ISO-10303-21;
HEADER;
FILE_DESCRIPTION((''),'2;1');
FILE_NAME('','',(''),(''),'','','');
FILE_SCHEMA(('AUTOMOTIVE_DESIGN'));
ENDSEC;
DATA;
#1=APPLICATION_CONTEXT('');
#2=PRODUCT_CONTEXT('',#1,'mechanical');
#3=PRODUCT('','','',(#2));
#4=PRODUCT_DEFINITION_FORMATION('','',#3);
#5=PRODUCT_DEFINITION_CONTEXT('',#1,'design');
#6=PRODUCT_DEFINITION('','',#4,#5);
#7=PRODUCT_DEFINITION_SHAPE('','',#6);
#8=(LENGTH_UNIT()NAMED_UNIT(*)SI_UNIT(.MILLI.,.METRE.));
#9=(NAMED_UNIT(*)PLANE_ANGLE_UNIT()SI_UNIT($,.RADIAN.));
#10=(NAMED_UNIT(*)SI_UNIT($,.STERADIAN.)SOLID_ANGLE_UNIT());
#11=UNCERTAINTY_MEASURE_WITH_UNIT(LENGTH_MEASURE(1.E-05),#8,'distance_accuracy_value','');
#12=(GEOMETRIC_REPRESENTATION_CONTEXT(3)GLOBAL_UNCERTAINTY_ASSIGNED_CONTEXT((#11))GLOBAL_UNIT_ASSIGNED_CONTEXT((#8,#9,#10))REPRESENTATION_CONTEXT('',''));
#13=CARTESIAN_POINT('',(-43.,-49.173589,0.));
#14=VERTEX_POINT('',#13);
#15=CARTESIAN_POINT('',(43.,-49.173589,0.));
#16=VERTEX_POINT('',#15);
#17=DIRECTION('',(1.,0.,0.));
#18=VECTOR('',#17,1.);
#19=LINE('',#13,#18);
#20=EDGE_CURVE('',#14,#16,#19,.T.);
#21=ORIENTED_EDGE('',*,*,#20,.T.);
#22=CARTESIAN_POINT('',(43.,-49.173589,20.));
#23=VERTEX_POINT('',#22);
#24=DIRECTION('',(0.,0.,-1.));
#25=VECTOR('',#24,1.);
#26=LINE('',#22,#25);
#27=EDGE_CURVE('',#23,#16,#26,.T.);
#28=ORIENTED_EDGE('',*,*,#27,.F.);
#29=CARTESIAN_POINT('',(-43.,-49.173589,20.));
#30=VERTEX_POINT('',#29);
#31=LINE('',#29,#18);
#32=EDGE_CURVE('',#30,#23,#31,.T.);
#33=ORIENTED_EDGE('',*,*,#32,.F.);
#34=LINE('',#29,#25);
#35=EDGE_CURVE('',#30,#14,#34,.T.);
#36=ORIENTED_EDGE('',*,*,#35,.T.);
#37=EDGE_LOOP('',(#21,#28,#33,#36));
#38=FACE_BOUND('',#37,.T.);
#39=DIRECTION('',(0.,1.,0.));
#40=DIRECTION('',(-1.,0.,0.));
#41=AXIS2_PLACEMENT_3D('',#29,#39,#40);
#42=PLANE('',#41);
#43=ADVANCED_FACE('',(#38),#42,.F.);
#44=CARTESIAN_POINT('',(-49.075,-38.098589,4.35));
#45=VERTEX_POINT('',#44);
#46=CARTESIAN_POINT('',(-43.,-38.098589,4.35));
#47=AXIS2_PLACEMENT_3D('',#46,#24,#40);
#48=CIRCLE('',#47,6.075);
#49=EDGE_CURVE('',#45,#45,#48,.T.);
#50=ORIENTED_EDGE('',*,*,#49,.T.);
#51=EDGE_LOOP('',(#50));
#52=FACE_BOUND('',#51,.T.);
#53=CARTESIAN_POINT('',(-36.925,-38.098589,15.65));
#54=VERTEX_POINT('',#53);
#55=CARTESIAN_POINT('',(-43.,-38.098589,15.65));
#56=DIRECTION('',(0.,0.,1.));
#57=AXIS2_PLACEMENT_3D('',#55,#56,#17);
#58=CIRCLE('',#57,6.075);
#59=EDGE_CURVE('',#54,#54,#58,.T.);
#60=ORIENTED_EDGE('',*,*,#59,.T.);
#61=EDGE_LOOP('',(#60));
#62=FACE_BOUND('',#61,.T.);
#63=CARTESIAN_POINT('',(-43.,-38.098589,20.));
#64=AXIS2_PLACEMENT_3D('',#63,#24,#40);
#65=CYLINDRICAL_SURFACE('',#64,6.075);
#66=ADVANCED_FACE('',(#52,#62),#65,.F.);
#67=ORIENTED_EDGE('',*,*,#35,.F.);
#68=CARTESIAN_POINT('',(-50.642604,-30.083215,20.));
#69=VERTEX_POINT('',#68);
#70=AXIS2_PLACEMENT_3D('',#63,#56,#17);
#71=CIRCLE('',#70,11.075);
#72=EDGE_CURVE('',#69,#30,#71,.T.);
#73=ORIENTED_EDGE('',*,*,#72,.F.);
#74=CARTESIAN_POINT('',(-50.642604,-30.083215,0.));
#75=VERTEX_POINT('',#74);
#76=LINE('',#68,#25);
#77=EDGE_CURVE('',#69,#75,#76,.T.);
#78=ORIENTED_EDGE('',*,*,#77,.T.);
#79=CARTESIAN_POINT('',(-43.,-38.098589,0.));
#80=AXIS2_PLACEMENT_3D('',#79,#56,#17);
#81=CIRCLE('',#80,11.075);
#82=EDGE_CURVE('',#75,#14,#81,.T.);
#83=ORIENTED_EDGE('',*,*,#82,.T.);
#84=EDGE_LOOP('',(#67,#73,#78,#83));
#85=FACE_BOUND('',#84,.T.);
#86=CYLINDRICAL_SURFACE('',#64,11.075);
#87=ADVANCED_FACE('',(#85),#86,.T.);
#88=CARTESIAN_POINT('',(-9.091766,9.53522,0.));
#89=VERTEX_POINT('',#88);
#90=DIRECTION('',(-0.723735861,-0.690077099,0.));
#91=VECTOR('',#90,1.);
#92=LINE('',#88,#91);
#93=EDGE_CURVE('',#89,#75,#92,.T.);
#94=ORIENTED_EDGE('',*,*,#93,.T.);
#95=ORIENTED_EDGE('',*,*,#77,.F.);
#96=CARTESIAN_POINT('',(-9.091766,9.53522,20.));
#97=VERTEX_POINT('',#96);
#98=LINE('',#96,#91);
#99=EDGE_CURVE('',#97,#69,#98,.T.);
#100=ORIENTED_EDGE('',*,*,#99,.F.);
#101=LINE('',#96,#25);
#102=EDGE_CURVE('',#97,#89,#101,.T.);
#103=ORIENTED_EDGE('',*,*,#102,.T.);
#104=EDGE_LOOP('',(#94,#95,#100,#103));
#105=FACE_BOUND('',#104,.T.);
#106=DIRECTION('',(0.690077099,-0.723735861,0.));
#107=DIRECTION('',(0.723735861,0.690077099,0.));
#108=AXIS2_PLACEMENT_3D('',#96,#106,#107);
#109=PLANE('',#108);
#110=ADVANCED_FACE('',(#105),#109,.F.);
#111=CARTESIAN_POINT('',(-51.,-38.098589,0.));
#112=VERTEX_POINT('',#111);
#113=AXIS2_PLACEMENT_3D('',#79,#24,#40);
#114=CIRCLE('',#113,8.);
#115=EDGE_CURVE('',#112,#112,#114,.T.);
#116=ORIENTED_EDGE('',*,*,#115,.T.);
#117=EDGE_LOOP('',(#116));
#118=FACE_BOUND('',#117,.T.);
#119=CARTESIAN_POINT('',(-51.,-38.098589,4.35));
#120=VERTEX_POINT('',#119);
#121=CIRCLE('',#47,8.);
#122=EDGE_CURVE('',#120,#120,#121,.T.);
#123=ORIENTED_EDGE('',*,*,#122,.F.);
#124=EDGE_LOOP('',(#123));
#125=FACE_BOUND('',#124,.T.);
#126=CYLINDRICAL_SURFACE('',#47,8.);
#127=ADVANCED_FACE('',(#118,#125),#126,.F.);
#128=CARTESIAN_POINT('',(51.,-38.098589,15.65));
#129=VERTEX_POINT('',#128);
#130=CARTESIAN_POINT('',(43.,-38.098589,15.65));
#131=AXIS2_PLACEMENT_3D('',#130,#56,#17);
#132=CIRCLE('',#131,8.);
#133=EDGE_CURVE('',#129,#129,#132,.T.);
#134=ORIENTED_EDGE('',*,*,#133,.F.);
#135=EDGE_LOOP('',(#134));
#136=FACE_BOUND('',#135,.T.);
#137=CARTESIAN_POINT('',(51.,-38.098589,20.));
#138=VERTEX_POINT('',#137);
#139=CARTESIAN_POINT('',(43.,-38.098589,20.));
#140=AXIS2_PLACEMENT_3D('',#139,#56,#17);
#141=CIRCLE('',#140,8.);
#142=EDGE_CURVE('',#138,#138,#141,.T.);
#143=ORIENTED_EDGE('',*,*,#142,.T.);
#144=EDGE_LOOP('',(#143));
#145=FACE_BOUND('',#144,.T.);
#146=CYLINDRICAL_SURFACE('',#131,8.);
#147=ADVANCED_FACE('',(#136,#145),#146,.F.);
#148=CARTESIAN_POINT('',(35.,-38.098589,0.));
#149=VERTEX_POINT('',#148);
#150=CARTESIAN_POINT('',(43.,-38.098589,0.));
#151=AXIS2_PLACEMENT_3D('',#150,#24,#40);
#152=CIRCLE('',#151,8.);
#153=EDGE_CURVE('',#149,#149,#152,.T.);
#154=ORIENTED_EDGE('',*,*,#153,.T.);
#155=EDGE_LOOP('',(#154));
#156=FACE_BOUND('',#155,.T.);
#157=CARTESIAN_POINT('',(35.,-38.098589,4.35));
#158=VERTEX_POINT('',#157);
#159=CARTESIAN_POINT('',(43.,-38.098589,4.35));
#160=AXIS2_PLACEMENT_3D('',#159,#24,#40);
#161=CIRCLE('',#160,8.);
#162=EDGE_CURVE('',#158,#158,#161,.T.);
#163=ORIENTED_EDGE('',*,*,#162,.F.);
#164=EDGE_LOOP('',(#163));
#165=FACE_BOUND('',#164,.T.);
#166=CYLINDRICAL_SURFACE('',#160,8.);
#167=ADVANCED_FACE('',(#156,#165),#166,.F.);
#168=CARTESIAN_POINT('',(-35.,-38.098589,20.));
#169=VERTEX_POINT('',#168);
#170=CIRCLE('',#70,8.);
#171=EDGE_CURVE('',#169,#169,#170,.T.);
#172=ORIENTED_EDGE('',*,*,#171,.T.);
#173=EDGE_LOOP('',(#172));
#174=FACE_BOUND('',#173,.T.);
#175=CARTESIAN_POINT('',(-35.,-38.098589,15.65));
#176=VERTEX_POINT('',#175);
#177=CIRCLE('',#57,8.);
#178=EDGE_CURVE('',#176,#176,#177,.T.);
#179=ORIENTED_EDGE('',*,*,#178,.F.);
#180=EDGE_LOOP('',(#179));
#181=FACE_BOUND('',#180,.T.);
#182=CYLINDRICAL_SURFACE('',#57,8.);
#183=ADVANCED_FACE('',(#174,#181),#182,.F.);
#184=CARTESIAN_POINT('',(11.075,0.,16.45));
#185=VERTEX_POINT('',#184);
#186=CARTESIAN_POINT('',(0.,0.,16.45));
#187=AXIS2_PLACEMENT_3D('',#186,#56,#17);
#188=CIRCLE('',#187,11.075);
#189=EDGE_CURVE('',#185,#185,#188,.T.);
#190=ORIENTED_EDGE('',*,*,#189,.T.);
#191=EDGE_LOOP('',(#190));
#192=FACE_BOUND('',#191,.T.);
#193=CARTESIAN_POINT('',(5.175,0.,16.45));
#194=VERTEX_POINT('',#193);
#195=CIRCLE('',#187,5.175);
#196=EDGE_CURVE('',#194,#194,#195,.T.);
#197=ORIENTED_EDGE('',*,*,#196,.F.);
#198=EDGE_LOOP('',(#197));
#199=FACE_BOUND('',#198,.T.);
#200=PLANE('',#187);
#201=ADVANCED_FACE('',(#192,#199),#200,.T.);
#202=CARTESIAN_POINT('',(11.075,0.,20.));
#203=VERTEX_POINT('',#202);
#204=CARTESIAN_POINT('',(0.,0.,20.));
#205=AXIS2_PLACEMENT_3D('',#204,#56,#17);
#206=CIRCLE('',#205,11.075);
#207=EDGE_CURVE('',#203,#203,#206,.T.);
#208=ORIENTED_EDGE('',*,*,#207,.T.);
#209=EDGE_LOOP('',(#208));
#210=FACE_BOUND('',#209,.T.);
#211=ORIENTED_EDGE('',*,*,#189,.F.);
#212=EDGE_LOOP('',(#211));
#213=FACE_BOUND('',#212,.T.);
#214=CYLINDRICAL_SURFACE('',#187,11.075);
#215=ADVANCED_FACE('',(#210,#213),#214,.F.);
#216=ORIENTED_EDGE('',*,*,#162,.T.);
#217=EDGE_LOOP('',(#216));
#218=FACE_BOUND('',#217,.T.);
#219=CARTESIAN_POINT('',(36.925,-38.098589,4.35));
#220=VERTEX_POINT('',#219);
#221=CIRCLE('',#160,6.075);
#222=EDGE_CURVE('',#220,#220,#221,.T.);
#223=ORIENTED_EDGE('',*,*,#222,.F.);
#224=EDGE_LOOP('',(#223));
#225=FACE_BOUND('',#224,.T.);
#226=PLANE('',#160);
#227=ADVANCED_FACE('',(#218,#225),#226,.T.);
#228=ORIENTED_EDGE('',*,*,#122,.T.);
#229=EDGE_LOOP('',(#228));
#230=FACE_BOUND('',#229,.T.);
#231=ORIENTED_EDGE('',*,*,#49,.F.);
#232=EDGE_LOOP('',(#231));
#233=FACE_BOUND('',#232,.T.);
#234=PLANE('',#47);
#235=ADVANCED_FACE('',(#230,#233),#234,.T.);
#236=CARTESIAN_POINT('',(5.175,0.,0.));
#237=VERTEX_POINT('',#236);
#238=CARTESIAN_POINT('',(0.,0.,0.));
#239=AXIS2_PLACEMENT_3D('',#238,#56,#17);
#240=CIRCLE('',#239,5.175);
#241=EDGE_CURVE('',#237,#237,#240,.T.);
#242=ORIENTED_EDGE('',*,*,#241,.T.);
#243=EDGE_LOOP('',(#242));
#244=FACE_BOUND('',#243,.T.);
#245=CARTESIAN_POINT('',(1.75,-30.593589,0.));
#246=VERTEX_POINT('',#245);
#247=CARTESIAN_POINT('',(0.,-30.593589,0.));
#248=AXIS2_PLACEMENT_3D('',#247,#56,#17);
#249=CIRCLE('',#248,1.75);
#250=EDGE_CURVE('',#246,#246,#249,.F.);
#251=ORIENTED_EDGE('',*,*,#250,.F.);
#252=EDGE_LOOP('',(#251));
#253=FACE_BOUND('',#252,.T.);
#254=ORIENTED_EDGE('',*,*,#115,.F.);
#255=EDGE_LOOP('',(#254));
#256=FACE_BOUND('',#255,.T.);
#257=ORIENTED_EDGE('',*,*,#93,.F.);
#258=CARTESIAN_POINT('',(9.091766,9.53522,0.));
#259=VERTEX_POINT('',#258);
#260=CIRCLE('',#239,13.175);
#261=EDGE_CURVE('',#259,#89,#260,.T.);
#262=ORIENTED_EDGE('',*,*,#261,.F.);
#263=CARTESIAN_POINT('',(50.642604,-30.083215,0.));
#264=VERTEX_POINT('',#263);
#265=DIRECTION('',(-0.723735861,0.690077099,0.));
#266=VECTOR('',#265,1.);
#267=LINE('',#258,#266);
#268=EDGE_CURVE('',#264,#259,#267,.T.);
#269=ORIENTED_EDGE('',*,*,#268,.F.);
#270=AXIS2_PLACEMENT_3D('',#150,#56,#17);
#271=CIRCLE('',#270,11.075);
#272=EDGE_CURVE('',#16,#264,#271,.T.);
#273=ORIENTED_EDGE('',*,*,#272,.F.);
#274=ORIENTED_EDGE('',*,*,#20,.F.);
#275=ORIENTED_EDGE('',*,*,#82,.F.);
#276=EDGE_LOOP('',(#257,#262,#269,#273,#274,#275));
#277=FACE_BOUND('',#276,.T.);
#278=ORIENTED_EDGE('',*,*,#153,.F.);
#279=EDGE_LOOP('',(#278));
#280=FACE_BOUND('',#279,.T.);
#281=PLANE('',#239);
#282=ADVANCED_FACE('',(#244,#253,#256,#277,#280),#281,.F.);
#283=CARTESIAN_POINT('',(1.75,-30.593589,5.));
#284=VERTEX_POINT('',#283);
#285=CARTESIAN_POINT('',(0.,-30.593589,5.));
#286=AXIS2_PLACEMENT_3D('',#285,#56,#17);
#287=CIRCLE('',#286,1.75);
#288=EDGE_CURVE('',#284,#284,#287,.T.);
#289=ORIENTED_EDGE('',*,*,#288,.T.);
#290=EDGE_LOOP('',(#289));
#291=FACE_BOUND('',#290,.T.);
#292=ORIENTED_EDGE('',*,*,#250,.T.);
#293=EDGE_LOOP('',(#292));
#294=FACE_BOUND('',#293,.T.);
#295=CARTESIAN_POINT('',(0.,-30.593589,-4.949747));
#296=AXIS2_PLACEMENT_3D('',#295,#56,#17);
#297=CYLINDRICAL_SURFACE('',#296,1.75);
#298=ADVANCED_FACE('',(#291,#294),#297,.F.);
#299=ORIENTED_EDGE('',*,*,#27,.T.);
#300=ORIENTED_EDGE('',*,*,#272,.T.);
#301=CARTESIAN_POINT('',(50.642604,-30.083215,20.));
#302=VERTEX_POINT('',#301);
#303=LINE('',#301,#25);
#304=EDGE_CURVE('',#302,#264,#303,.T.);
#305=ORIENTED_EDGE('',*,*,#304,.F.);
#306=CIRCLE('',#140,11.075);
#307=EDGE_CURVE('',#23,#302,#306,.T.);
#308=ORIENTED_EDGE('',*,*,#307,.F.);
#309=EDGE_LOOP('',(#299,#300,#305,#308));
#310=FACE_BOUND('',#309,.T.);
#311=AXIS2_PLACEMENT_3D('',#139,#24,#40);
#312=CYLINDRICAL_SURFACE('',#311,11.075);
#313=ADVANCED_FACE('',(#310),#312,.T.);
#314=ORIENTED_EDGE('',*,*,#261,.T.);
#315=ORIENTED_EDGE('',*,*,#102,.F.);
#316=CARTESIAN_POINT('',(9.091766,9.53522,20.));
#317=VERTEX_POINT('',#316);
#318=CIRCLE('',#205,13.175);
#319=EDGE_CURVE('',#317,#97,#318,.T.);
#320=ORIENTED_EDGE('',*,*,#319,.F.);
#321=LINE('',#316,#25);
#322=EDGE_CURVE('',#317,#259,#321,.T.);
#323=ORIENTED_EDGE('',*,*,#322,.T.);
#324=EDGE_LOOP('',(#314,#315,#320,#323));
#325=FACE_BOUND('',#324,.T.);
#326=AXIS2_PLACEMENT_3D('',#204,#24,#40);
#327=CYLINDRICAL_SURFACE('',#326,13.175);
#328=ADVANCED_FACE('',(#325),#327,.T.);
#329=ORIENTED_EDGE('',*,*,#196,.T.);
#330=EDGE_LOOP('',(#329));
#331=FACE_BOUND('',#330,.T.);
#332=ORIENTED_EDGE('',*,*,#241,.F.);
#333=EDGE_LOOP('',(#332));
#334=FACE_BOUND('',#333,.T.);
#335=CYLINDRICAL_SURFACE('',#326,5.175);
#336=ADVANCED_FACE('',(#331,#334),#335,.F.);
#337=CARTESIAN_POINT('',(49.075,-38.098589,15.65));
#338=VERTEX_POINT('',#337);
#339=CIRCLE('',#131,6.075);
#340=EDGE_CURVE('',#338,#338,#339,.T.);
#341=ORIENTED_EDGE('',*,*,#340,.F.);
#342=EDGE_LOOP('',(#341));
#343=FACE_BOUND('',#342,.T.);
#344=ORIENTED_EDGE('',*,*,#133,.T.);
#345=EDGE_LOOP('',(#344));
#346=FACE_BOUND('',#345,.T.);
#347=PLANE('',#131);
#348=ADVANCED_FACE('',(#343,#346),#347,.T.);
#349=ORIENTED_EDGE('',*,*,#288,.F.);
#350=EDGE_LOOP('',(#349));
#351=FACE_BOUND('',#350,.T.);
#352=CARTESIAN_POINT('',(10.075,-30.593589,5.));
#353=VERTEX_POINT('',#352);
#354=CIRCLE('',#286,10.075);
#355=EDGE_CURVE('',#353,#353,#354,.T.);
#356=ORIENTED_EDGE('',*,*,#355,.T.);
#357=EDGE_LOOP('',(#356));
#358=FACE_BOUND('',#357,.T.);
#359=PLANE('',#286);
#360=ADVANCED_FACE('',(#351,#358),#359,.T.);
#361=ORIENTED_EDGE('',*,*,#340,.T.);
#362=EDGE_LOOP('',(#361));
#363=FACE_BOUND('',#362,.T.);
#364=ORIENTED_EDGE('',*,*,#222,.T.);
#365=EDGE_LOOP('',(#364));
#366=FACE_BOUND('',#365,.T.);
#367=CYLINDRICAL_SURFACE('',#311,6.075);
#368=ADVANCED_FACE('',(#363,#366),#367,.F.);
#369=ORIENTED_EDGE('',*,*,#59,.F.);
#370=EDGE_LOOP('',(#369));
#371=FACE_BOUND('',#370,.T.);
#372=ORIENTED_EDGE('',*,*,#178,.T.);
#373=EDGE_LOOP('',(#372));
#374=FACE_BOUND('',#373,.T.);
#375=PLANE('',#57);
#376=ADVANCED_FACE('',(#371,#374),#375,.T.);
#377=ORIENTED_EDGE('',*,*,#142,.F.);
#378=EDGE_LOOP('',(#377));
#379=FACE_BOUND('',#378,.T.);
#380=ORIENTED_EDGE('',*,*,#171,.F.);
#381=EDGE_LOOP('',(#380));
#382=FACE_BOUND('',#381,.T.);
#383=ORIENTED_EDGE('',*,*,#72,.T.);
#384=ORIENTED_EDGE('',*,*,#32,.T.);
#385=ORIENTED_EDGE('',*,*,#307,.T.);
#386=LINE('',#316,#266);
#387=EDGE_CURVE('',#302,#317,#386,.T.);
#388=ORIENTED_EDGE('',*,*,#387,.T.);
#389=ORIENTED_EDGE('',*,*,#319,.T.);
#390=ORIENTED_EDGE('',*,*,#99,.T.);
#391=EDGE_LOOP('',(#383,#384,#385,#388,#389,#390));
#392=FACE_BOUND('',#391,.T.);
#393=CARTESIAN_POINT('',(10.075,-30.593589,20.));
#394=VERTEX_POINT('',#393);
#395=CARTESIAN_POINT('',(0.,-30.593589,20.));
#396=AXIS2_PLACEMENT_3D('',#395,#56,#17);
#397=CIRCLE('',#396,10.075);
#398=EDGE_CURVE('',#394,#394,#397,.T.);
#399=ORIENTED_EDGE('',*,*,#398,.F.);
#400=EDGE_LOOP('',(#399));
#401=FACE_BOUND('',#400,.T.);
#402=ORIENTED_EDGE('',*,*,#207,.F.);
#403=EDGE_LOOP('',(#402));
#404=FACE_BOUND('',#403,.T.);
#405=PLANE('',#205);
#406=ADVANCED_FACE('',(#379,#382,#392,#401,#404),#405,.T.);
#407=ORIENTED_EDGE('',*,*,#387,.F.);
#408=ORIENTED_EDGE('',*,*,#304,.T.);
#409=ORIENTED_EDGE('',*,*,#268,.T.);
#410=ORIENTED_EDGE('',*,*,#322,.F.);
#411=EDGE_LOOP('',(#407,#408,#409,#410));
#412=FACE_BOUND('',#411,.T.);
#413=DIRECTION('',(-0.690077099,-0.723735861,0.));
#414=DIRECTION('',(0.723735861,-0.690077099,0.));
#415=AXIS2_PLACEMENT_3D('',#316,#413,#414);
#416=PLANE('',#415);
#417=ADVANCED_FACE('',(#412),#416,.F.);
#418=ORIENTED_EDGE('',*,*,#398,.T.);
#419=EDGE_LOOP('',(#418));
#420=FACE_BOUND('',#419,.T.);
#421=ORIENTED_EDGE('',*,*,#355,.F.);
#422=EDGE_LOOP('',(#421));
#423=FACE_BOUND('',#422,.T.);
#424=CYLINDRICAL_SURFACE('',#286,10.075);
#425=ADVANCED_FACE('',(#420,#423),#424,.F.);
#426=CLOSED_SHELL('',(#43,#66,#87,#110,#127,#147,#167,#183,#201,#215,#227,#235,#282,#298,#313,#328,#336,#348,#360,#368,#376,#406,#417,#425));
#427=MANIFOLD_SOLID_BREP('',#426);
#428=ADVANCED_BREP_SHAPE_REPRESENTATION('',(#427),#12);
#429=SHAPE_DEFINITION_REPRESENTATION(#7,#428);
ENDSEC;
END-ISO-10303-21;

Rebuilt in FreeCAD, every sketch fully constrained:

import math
import FreeCAD as App
import Part
import Sketcher

doc = App.newDocument("Part")
body = doc.addObject("PartDesign::Body", "Body")

sketch1 = body.newObject("Sketcher::SketchObject", "Sketch")
sketch1.AttachmentSupport = (doc.getObject("XY_Plane"), [""])
sketch1.MapMode = "FlatFace"
sketch1.addGeometry(Part.LineSegment(App.Vector(50.642604, -30.083215, 0), App.Vector(9.091766, 9.53522, 0)), False)
sketch1.addGeometry(Part.ArcOfCircle(Part.Circle(App.Vector(0, 0, 0), App.Vector(0, 0, 1), 13.175), math.radians(46.363788), math.radians(133.636212)), False)
sketch1.addGeometry(Part.LineSegment(App.Vector(-9.091766, 9.53522, 0), App.Vector(-50.642604, -30.083215, 0)), False)
sketch1.addGeometry(Part.ArcOfCircle(Part.Circle(App.Vector(-43, -38.098589, 0), App.Vector(0, 0, 1), 11.075), math.radians(133.636212), math.radians(270)), False)
sketch1.addGeometry(Part.LineSegment(App.Vector(-43, -49.173589, 0), App.Vector(43, -49.173589, 0)), False)
sketch1.addGeometry(Part.ArcOfCircle(Part.Circle(App.Vector(43, -38.098589, 0), App.Vector(0, 0, 1), 11.075), math.radians(-90), math.radians(46.363788)), False)
sketch1.addGeometry(Part.Circle(App.Vector(43, -38.098589, 0), App.Vector(0, 0, 1), 6.075), False)
sketch1.addGeometry(Part.Circle(App.Vector(-43, -38.098589, 0), App.Vector(0, 0, 1), 6.075), False)
sketch1.addGeometry(Part.Circle(App.Vector(0, 0, 0), App.Vector(0, 0, 1), 5.175), False)
sketch1.addConstraint(Sketcher.Constraint("Tangent", 0, 2, 1, 1))
sketch1.addConstraint(Sketcher.Constraint("Tangent", 1, 2, 2, 1))
sketch1.addConstraint(Sketcher.Constraint("Tangent", 2, 2, 3, 1))
sketch1.addConstraint(Sketcher.Constraint("Tangent", 3, 2, 4, 1))
sketch1.addConstraint(Sketcher.Constraint("Tangent", 4, 2, 5, 1))
sketch1.addConstraint(Sketcher.Constraint("Tangent", 5, 2, 0, 1))
sketch1.addConstraint(Sketcher.Constraint("Horizontal", 4))
sketch1.addConstraint(Sketcher.Constraint("Coincident", 1, 3, -1, 1))
sketch1.addConstraint(Sketcher.Constraint("Coincident", 8, 3, -1, 1))
sketch1.addConstraint(Sketcher.Constraint("Coincident", 6, 3, 5, 3))
sketch1.addConstraint(Sketcher.Constraint("Coincident", 7, 3, 3, 3))
sketch1.addConstraint(Sketcher.Constraint("Equal", 3, 5))
sketch1.addConstraint(Sketcher.Constraint("Equal", 6, 7))
sketch1.addConstraint(Sketcher.Constraint("Horizontal", 0, 2, 1, 2))
sketch1.addConstraint(Sketcher.Constraint("Diameter", 6, 12.15))
sketch1.addConstraint(Sketcher.Constraint("Diameter", 8, 10.35))
sketch1.addConstraint(Sketcher.Constraint("DistanceX", 4, 1, 4, 2, 86.0))
sketch1.addConstraint(Sketcher.Constraint("Radius", 1, 13.175))
sketch1.addConstraint(Sketcher.Constraint("Radius", 3, 11.075))
sketch1.addConstraint(Sketcher.Constraint("DistanceY", 3, 3, -1, 1, 38.098589))
pad1 = body.newObject("PartDesign::Pad", "Pad")
pad1.Profile = sketch1
pad1.Length = 20

sketch2 = body.newObject("Sketcher::SketchObject", "Sketch001")
sketch2.AttachmentSupport = (doc.getObject("XY_Plane"), [""])
sketch2.MapMode = "FlatFace"
sketch2.AttachmentOffset = App.Placement(App.Vector(0, 0, 20), App.Rotation())
sketch2.addGeometry(Part.Circle(App.Vector(0, 0, 0), App.Vector(0, 0, 1), 11.075), False)
sketch2.addConstraint(Sketcher.Constraint("Coincident", 0, 3, -1, 1))
sketch2.addConstraint(Sketcher.Constraint("Diameter", 0, 22.15))
pocket1 = body.newObject("PartDesign::Pocket", "Pocket")
pocket1.Profile = sketch2
pocket1.Length = 3.55

sketch3 = body.newObject("Sketcher::SketchObject", "Sketch002")
sketch3.AttachmentSupport = (doc.getObject("XY_Plane"), [""])
sketch3.MapMode = "FlatFace"
sketch3.addGeometry(Part.Circle(App.Vector(-43, -38.098589, 0), App.Vector(0, 0, 1), 8), False)
sketch3.addGeometry(Part.Circle(App.Vector(43, -38.098589, 0), App.Vector(0, 0, 1), 8), False)
sketch3.addConstraint(Sketcher.Constraint("Equal", 0, 1))
sketch3.addConstraint(Sketcher.Constraint("Symmetric", 0, 3, 1, 3, -2))
sketch3.addConstraint(Sketcher.Constraint("Diameter", 0, 16.0))
sketch3.addConstraint(Sketcher.Constraint("DistanceX", 0, 3, -1, 1, 43.0))
sketch3.addConstraint(Sketcher.Constraint("DistanceY", 0, 3, -1, 1, 38.098589))
pocket2 = body.newObject("PartDesign::Pocket", "Pocket001")
pocket2.Profile = sketch3
pocket2.Length = 4.35
pocket2.Reversed = True

sketch4 = body.newObject("Sketcher::SketchObject", "Sketch003")
sketch4.AttachmentSupport = (doc.getObject("XY_Plane"), [""])
sketch4.MapMode = "FlatFace"
sketch4.AttachmentOffset = App.Placement(App.Vector(0, 0, 15.65), App.Rotation())
sketch4.addGeometry(Part.Circle(App.Vector(-43, -38.098589, 0), App.Vector(0, 0, 1), 8), False)
sketch4.addGeometry(Part.Circle(App.Vector(43, -38.098589, 0), App.Vector(0, 0, 1), 8), False)
sketch4.addConstraint(Sketcher.Constraint("Equal", 0, 1))
sketch4.addConstraint(Sketcher.Constraint("Symmetric", 0, 3, 1, 3, -2))
sketch4.addConstraint(Sketcher.Constraint("Diameter", 0, 16.0))
sketch4.addConstraint(Sketcher.Constraint("DistanceX", 0, 3, -1, 1, 43.0))
sketch4.addConstraint(Sketcher.Constraint("DistanceY", 0, 3, -1, 1, 38.098589))
pocket3 = body.newObject("PartDesign::Pocket", "Pocket002")
pocket3.Profile = sketch4
pocket3.Length = 4.35
pocket3.Reversed = True

sketch5 = body.newObject("Sketcher::SketchObject", "Sketch004")
sketch5.AttachmentSupport = (doc.getObject("XY_Plane"), [""])
sketch5.MapMode = "FlatFace"
sketch5.AttachmentOffset = App.Placement(App.Vector(0, 0, 20), App.Rotation())
sketch5.addGeometry(Part.Circle(App.Vector(0, -30.593589, 0), App.Vector(0, 0, 1), 10.075), False)
sketch5.addConstraint(Sketcher.Constraint("PointOnObject", 0, 3, -2))
sketch5.addConstraint(Sketcher.Constraint("Diameter", 0, 20.15))
sketch5.addConstraint(Sketcher.Constraint("DistanceY", 0, 3, -1, 1, 30.593589))
pocket4 = body.newObject("PartDesign::Pocket", "Pocket003")
pocket4.Profile = sketch5
pocket4.Length = 15

sketch6 = body.newObject("Sketcher::SketchObject", "Sketch005")
sketch6.AttachmentSupport = (doc.getObject("XY_Plane"), [""])
sketch6.MapMode = "FlatFace"
sketch6.AttachmentOffset = App.Placement(App.Vector(0, 0, 5), App.Rotation())
sketch6.addGeometry(Part.Circle(App.Vector(0, -30.593589, 0), App.Vector(0, 0, 1), 1.75), False)
sketch6.addConstraint(Sketcher.Constraint("PointOnObject", 0, 3, -2))
sketch6.addConstraint(Sketcher.Constraint("Diameter", 0, 3.5))
sketch6.addConstraint(Sketcher.Constraint("DistanceY", 0, 3, -1, 1, 30.593589))
pocket5 = body.newObject("PartDesign::Pocket", "Pocket004")
pocket5.Profile = sketch6
pocket5.Length = 5

doc.recompute()
